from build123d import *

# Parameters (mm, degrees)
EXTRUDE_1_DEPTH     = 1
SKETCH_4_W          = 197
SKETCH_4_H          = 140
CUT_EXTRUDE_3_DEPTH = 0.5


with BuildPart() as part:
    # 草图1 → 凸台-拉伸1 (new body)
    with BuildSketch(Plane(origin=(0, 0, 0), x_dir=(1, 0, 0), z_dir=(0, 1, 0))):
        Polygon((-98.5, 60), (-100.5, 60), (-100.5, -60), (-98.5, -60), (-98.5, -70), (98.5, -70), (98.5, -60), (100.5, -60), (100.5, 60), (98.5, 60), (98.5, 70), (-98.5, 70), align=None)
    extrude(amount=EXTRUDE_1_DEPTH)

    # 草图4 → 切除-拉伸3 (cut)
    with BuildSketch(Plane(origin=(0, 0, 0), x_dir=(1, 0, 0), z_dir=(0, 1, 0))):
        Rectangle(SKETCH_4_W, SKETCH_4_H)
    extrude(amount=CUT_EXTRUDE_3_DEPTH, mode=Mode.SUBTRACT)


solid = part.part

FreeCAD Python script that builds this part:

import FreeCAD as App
import Part
import Sketcher

V = App.Vector


def add_polygon(sketch, points):
    """Adds a closed chain of lines whose ends are joined by coincident constraints."""
    first, n = sketch.GeometryCount, len(points)
    for a, b in zip(points, points[1:] + points[:1]):
        sketch.addGeometry(Part.LineSegment(App.Vector(*a, 0), App.Vector(*b, 0)), False)
    for i in range(n):
        sketch.addConstraint(Sketcher.Constraint("Coincident", first + i, 2, first + (i + 1) % n, 1))

doc = App.newDocument("Part")
body = doc.addObject("PartDesign::Body", "Body")

# Sketch on XZ plane
sketch1 = doc.addObject("Sketcher::SketchObject", "Sketch")
body.addObject(sketch1)
sketch1.AttachmentSupport = (doc.XZ_Plane, [""])
sketch1.MapMode = "FlatFace"
add_polygon(sketch1, [(-98.5, -60), (-100.5, -60), (-100.5, 60), (-98.5, 60), (-98.5, 70), (98.5, 70), (98.5, 60), (100.5, 60), (100.5, -60), (98.5, -60), (98.5, -70), (-98.5, -70)])  # lines 0-11
sketch1.addConstraint([
    Sketcher.Constraint("Horizontal", 0),
    Sketcher.Constraint("Vertical", 1),
    Sketcher.Constraint("Horizontal", 2),
    Sketcher.Constraint("Vertical", 3),
    Sketcher.Constraint("Horizontal", 4),
    Sketcher.Constraint("Vertical", 5),
    Sketcher.Constraint("Horizontal", 6),
    Sketcher.Constraint("Vertical", 7),
    Sketcher.Constraint("Horizontal", 8),
    Sketcher.Constraint("Vertical", 9),
    Sketcher.Constraint("Horizontal", 10),
    Sketcher.Constraint("Vertical", 11),
    Sketcher.Constraint("Symmetric", 0, 2, 6, 2, -1, 1),
    Sketcher.Constraint("Symmetric", 2, 2, 8, 2, -1, 1),
    Sketcher.Constraint("Symmetric", 4, 2, 10, 2, -1, 1),
    Sketcher.Constraint("Symmetric", 2, 2, 5, 2, -2),
    Sketcher.Constraint("DistanceX", 0, 2, 0, 1, 2.0),
    Sketcher.Constraint("DistanceX", 4, 1, 4, 2, 197.0),
    Sketcher.Constraint("DistanceY", 1, 1, 1, 2, 120.0),
    Sketcher.Constraint("DistanceY", 3, 1, 3, 2, 10.0),
])
pad1 = doc.addObject("PartDesign::Pad", "Pad")
body.addObject(pad1)
pad1.Profile = sketch1
pad1.Length = 1
pad1.Reversed = True

# Sketch on XZ plane
sketch2 = doc.addObject("Sketcher::SketchObject", "Sketch001")
body.addObject(sketch2)
sketch2.AttachmentSupport = (doc.XZ_Plane, [""])
sketch2.MapMode = "FlatFace"
add_polygon(sketch2, [(-98, -70), (-98, 70), (98, 70), (98, -70)])  # lines 0-3
sketch2.addConstraint([
    Sketcher.Constraint("Vertical", 0),
    Sketcher.Constraint("Horizontal", 1),
    Sketcher.Constraint("Vertical", 2),
    Sketcher.Constraint("Horizontal", 3),
    Sketcher.Constraint("Symmetric", 0, 2, 2, 2, -1, 1),
    Sketcher.Constraint("DistanceX", 1, 1, 1, 2, 197.0),
    Sketcher.Constraint("DistanceY", 0, 1, 0, 2, 140.0),
])
pocket1 = doc.addObject("PartDesign::Pocket", "Pocket")
body.addObject(pocket1)
pocket1.Profile = sketch2
pocket1.Length = 0.5

doc.recompute()
